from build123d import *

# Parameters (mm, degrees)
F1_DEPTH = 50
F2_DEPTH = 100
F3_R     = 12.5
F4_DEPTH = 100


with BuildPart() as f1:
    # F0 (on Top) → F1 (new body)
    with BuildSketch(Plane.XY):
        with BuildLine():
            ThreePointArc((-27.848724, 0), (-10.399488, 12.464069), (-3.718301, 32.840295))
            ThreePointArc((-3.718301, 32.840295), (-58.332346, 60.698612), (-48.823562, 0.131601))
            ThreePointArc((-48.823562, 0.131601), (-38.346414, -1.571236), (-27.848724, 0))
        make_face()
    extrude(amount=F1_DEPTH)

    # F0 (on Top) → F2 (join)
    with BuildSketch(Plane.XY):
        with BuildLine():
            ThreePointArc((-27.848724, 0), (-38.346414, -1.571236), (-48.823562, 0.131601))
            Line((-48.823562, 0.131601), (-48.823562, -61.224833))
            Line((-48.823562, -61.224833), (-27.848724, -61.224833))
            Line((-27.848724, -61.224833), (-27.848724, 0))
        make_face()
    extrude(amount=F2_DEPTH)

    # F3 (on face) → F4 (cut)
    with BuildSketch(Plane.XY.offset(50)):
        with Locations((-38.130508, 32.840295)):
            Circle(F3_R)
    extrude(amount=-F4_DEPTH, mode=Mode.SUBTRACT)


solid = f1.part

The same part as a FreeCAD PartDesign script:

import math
import FreeCAD as App
import Part
import Sketcher
from FreeCAD import Vector
Q = App.Units.Quantity

doc = App.newDocument("Part")
body = doc.addObject("PartDesign::Body", "Body")

# Sketch on XY plane
sketch1 = body.newObject("Sketcher::SketchObject", "Sketch")
sketch1.AttachmentSupport = (doc.getObject("XY_Plane"), [""])
sketch1.MapMode = "FlatFace"
sketch1.addGeometry([
    Part.ArcOfCircle(Part.Circle(Vector(-38, 33, 0), Vector(0, 0, 1), 34), math.radians(-73), math.radians(0)),
    Part.ArcOfCircle(Part.Circle(Vector(-38, 33, 0), Vector(0, 0, 1), 34), math.radians(0), math.radians(252)),
    Part.ArcOfCircle(Part.Circle(Vector(-38, 33, 0), Vector(0, 0, 1), 34), math.radians(-108), math.radians(-73)),
], False)
sketch1.addConstraint([
    Sketcher.Constraint("Tangent", 0, 2, 1, 1),
    Sketcher.Constraint("Tangent", 1, 2, 2, 1),
    Sketcher.Constraint("Tangent", 2, 2, 0, 1),
    Sketcher.Constraint("PointOnObject", 2, 2, -1),
    Sketcher.Constraint("Horizontal", 1, 3, 0, 2),
    Sketcher.Constraint("Radius", 0, Q("34.412206 mm")),
    Sketcher.Constraint("DistanceX", 0, 2, -1, 1, Q("3.718301 mm")),
    Sketcher.Constraint("DistanceY", -1, 1, 1, 2, Q("0.131601 mm")),
    Sketcher.Constraint("DistanceY", -1, 1, 2, 3, Q("32.840289 mm")),
])
pad1 = body.newObject("PartDesign::Pad", "Pad")
pad1.Profile = sketch1
pad1.Length = 50

# Sketch on XY plane
sketch2 = body.newObject("Sketcher::SketchObject", "Sketch001")
sketch2.AttachmentSupport = (doc.getObject("XY_Plane"), [""])
sketch2.MapMode = "FlatFace"
sketch2.addGeometry([
    Part.ArcOfCircle(Part.Circle(Vector(-38, 33, 0), Vector(0, 0, 1), 34), math.radians(-108), math.radians(-73)),
    Part.LineSegment(Vector(-49, 0, 0), Vector(-49, -61, 0)),
    Part.LineSegment(Vector(-49, -61, 0), Vector(-28, -61, 0)),
    Part.LineSegment(Vector(-28, -61, 0), Vector(-28, 0, 0)),
], False)
sketch2.addConstraint([
    Sketcher.Constraint("Coincident", 0, 1, 1, 1),
    Sketcher.Constraint("Coincident", 1, 2, 2, 1),
    Sketcher.Constraint("Coincident", 2, 2, 3, 1),
    Sketcher.Constraint("Coincident", 3, 2, 0, 2),
    Sketcher.Constraint("Vertical", 1),
    Sketcher.Constraint("Horizontal", 2),
    Sketcher.Constraint("Vertical", 3),
    Sketcher.Constraint("PointOnObject", 3, 2, -1),
    Sketcher.Constraint("Radius", 0, Q("34.412203 mm")),
    Sketcher.Constraint("DistanceX", 2, 1, 2, 2, Q("20.974838 mm")),
    Sketcher.Constraint("DistanceY", -1, 1, 0, 1, Q("0.131601 mm")),
    Sketcher.Constraint("DistanceY", 1, 2, 1, 1, Q("61.356434 mm")),
    Sketcher.Constraint("DistanceX", 0, 3, -1, 1, Q("38.130508 mm")),
])
pad2 = body.newObject("PartDesign::Pad", "Pad001")
pad2.Profile = sketch2
pad2.Length = 100

# Sketch on XY plane
sketch3 = body.newObject("Sketcher::SketchObject", "Sketch002")
sketch3.AttachmentSupport = (doc.getObject("XY_Plane"), [""])
sketch3.MapMode = "FlatFace"
sketch3.AttachmentOffset = App.Placement(Vector(0, 0, 50), App.Rotation())
sketch3.addGeometry(Part.Circle(Vector(-38, 33, 0), Vector(0, 0, 1), 12), False)
sketch3.addConstraint([
    Sketcher.Constraint("Diameter", 0, Q("25 mm")),
    Sketcher.Constraint("DistanceX", 0, 3, -1, 1, Q("38.130508 mm")),
    Sketcher.Constraint("DistanceY", -1, 1, 0, 3, Q("32.840295 mm")),
])
pocket1 = body.newObject("PartDesign::Pocket", "Pocket")
pocket1.Profile = sketch3
pocket1.Length = 100

doc.recompute()
